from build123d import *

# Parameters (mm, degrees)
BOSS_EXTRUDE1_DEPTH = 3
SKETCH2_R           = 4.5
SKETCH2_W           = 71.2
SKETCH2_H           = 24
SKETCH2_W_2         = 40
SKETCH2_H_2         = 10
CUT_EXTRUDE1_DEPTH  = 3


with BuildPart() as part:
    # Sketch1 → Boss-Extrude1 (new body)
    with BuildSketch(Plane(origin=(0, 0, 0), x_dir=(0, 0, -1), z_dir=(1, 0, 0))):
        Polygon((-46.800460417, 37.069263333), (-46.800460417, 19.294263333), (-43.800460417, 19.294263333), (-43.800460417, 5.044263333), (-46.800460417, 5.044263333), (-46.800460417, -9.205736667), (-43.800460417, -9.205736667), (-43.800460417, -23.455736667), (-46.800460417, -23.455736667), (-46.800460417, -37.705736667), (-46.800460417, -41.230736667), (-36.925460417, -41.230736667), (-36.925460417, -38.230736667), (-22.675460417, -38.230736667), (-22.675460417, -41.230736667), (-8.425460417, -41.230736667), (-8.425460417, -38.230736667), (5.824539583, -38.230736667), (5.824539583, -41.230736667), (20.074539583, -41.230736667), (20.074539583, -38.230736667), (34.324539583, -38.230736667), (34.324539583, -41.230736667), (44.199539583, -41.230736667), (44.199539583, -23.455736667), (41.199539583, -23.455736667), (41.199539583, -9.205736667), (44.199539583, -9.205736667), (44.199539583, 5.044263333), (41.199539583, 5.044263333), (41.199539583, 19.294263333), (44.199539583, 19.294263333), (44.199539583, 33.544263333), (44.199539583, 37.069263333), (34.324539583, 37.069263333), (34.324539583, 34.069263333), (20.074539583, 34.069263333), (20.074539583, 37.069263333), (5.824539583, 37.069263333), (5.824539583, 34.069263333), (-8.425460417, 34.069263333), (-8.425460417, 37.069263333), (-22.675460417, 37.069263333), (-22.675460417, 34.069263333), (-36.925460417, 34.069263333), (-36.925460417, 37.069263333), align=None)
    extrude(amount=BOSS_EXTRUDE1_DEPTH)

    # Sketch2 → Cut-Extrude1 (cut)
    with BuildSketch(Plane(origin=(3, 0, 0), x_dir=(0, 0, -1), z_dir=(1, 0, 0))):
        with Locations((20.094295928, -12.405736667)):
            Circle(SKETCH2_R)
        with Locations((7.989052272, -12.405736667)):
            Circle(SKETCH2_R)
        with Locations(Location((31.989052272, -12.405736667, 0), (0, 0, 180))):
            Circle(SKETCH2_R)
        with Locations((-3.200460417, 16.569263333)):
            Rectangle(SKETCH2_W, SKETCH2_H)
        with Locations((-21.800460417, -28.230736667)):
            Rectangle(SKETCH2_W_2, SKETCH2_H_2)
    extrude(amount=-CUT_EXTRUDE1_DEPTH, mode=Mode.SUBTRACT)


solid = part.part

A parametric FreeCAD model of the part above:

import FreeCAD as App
import Part
import Sketcher

V = App.Vector


def add_polygon(sketch, points):
    """Adds a closed chain of lines whose ends are joined by coincident constraints."""
    first, n = sketch.GeometryCount, len(points)
    for a, b in zip(points, points[1:] + points[:1]):
        sketch.addGeometry(Part.LineSegment(App.Vector(*a, 0), App.Vector(*b, 0)), False)
    for i in range(n):
        sketch.addConstraint(Sketcher.Constraint("Coincident", first + i, 2, first + (i + 1) % n, 1))

doc = App.newDocument("Part")
body = doc.addObject("PartDesign::Body", "Body")

sketch1 = body.newObject("Sketcher::SketchObject", "Sketch")
sketch1.AttachmentSupport = (doc.getObject("YZ_Plane"), [""])
sketch1.MapMode = "FlatFace"
add_polygon(sketch1, [(37.1, 46.8), (19.3, 46.8), (19.3, 43.8), (5, 43.8), (5, 46.8), (-9.2, 46.8), (-9.2, 43.8), (-23.5, 43.8), (-23.5, 46.8), (-41.2, 46.8), (-41.2, 36.9), (-38.2, 36.9), (-38.2, 22.7), (-41.2, 22.7), (-41.2, 8.4), (-38.2, 8.4), (-38.2, -5.8), (-41.2, -5.8), (-41.2, -20.1), (-38.2, -20.1), (-38.2, -34.3), (-41.2, -34.3), (-41.2, -44.2), (-23.5, -44.2), (-23.5, -41.2), (-9.2, -41.2), (-9.2, -44.2), (5, -44.2), (5, -41.2), (19.3, -41.2), (19.3, -44.2), (37.1, -44.2), (37.1, -34.3), (34.1, -34.3), (34.1, -20.1), (37.1, -20.1), (37.1, -5.8), (34.1, -5.8), (34.1, 8.4), (37.1, 8.4), (37.1, 22.7), (34.1, 22.7), (34.1, 36.9), (37.1, 36.9)])
sketch1.addConstraint(Sketcher.Constraint("Horizontal", 0))
sketch1.addConstraint(Sketcher.Constraint("Vertical", 1))
sketch1.addConstraint(Sketcher.Constraint("Horizontal", 2))
sketch1.addConstraint(Sketcher.Constraint("Vertical", 3))
sketch1.addConstraint(Sketcher.Constraint("Horizontal", 4))
sketch1.addConstraint(Sketcher.Constraint("Vertical", 5))
sketch1.addConstraint(Sketcher.Constraint("Horizontal", 6))
sketch1.addConstraint(Sketcher.Constraint("Vertical", 7))
sketch1.addConstraint(Sketcher.Constraint("Horizontal", 8))
sketch1.addConstraint(Sketcher.Constraint("Vertical", 9))
sketch1.addConstraint(Sketcher.Constraint("Horizontal", 10))
sketch1.addConstraint(Sketcher.Constraint("Vertical", 11))
sketch1.addConstraint(Sketcher.Constraint("Horizontal", 12))
sketch1.addConstraint(Sketcher.Constraint("Vertical", 13))
sketch1.addConstraint(Sketcher.Constraint("Horizontal", 14))
sketch1.addConstraint(Sketcher.Constraint("Vertical", 15))
sketch1.addConstraint(Sketcher.Constraint("Horizontal", 16))
sketch1.addConstraint(Sketcher.Constraint("Vertical", 17))
sketch1.addConstraint(Sketcher.Constraint("Horizontal", 18))
sketch1.addConstraint(Sketcher.Constraint("Vertical", 19))
sketch1.addConstraint(Sketcher.Constraint("Horizontal", 20))
sketch1.addConstraint(Sketcher.Constraint("Vertical", 21))
sketch1.addConstraint(Sketcher.Constraint("Horizontal", 22))
sketch1.addConstraint(Sketcher.Constraint("Vertical", 23))
sketch1.addConstraint(Sketcher.Constraint("Horizontal", 24))
sketch1.addConstraint(Sketcher.Constraint("Vertical", 25))
sketch1.addConstraint(Sketcher.Constraint("Horizontal", 26))
sketch1.addConstraint(Sketcher.Constraint("Vertical", 27))
sketch1.addConstraint(Sketcher.Constraint("Horizontal", 28))
sketch1.addConstraint(Sketcher.Constraint("Vertical", 29))
sketch1.addConstraint(Sketcher.Constraint("Horizontal", 30))
sketch1.addConstraint(Sketcher.Constraint("Vertical", 31))
sketch1.addConstraint(Sketcher.Constraint("Horizontal", 32))
sketch1.addConstraint(Sketcher.Constraint("Vertical", 33))
sketch1.addConstraint(Sketcher.Constraint("Horizontal", 34))
sketch1.addConstraint(Sketcher.Constraint("Vertical", 35))
sketch1.addConstraint(Sketcher.Constraint("Horizontal", 36))
sketch1.addConstraint(Sketcher.Constraint("Vertical", 37))
sketch1.addConstraint(Sketcher.Constraint("Horizontal", 38))
sketch1.addConstraint(Sketcher.Constraint("Vertical", 39))
sketch1.addConstraint(Sketcher.Constraint("Horizontal", 40))
sketch1.addConstraint(Sketcher.Constraint("Vertical", 41))
sketch1.addConstraint(Sketcher.Constraint("Horizontal", 42))
sketch1.addConstraint(Sketcher.Constraint("Vertical", 43))
sketch1.addConstraint(Sketcher.Constraint("Horizontal", 0, 2, 3, 2))
sketch1.addConstraint(Sketcher.Constraint("Horizontal", 2, 2, 5, 2))
sketch1.addConstraint(Sketcher.Constraint("Horizontal", 4, 2, 7, 2))
sketch1.addConstraint(Sketcher.Constraint("Horizontal", 22, 2, 25, 2))
sketch1.addConstraint(Sketcher.Constraint("Horizontal", 24, 2, 27, 2))
sketch1.addConstraint(Sketcher.Constraint("Horizontal", 26, 2, 29, 2))
sketch1.addConstraint(Sketcher.Constraint("Horizontal", 20, 2, 31, 2))
sketch1.addConstraint(Sketcher.Constraint("Horizontal", 18, 2, 33, 2))
sketch1.addConstraint(Sketcher.Constraint("Horizontal", 16, 2, 35, 2))
sketch1.addConstraint(Sketcher.Constraint("Horizontal", 14, 2, 37, 2))
sketch1.addConstraint(Sketcher.Constraint("Horizontal", 12, 2, 39, 2))
sketch1.addConstraint(Sketcher.Constraint("Horizontal", 10, 2, 41, 2))
sketch1.addConstraint(Sketcher.Constraint("Vertical", 9, 2, 12, 2))
sketch1.addConstraint(Sketcher.Constraint("Vertical", 11, 2, 14, 2))
sketch1.addConstraint(Sketcher.Constraint("Vertical", 13, 2, 16, 2))
sketch1.addConstraint(Sketcher.Constraint("Vertical", 15, 2, 18, 2))
sketch1.addConstraint(Sketcher.Constraint("Vertical", 17, 2, 20, 2))
sketch1.addConstraint(Sketcher.Constraint("Vertical", 7, 2, 22, 2))
sketch1.addConstraint(Sketcher.Constraint("Vertical", 5, 2, 24, 2))
sketch1.addConstraint(Sketcher.Constraint("Vertical", 3, 2, 26, 2))
sketch1.addConstraint(Sketcher.Constraint("Vertical", 1, 2, 28, 2))
sketch1.addConstraint(Sketcher.Constraint("Vertical", 31, 2, 34, 2))
sketch1.addConstraint(Sketcher.Constraint("Vertical", 33, 2, 36, 2))
sketch1.addConstraint(Sketcher.Constraint("Vertical", 35, 2, 38, 2))
sketch1.addConstraint(Sketcher.Constraint("Vertical", 37, 2, 40, 2))
sketch1.addConstraint(Sketcher.Constraint("Vertical", 39, 2, 42, 2))
sketch1.addConstraint(Sketcher.Constraint("Equal", 2, 4))
sketch1.addConstraint(Sketcher.Constraint("Equal", 4, 6))
sketch1.addConstraint(Sketcher.Constraint("Equal", 0, 8))
sketch1.addConstraint(Sketcher.Constraint("Equal", 20, 32))
sketch1.addConstraint(Sketcher.Constraint("Equal", 42, 1))
sketch1.addConstraint(Sketcher.Constraint("Equal", 28, 11))
sketch1.addConstraint(Sketcher.Constraint("Equal", 11, 13))
sketch1.addConstraint(Sketcher.Constraint("Equal", 13, 15))
sketch1.addConstraint(Sketcher.Constraint("Equal", 15, 17))
sketch1.addConstraint(Sketcher.Constraint("Equal", 17, 19))
sketch1.addConstraint(Sketcher.Constraint("Equal", 9, 21))
sketch1.addConstraint(Sketcher.Constraint("Equal", 7, 23))
sketch1.addConstraint(Sketcher.Constraint("DistanceX", 10, 1, 10, 2, 3.0))
sketch1.addConstraint(Sketcher.Constraint("DistanceX", 2, 2, 2, 1, 14.25))
sketch1.addConstraint(Sketcher.Constraint("DistanceX", 0, 2, 0, 1, 17.775))
sketch1.addConstraint(Sketcher.Constraint("DistanceY", 9, 2, 9, 1, 9.875))
sketch1.addConstraint(Sketcher.Constraint("DistanceY", -1, 1, 0, 2, 46.80046))
sketch1.addConstraint(Sketcher.Constraint("DistanceX", -1, 1, 0, 2, 19.294263))
pad1 = body.newObject("PartDesign::Pad", "Pad")
pad1.Profile = sketch1
pad1.Length = 3

sketch2 = body.newObject("Sketcher::SketchObject", "Sketch001")
sketch2.AttachmentSupport = (doc.getObject("YZ_Plane"), [""])
sketch2.MapMode = "FlatFace"
sketch2.AttachmentOffset = App.Placement(V(0, 0, 3), App.Rotation())
sketch2.addGeometry(Part.Circle(V(-12.4, -20.1, 0), V(0, 0, 1), 4.5), False)
sketch2.addGeometry(Part.Circle(V(-12.4, -8, 0), V(0, 0, 1), 4.5), False)
sketch2.addGeometry(Part.Circle(V(-12.4, -32, 0), V(0, 0, 1), 4.5), False)
add_polygon(sketch2, [(28.6, 38.8), (4.6, 38.8), (4.6, -32.4), (28.6, -32.4)])
add_polygon(sketch2, [(-23.2, 41.8), (-33.2, 41.8), (-33.2, 1.8), (-23.2, 1.8)])
sketch2.addConstraint(Sketcher.Constraint("Horizontal", 3))
sketch2.addConstraint(Sketcher.Constraint("Vertical", 4))
sketch2.addConstraint(Sketcher.Constraint("Horizontal", 5))
sketch2.addConstraint(Sketcher.Constraint("Vertical", 6))
sketch2.addConstraint(Sketcher.Constraint("Horizontal", 7))
sketch2.addConstraint(Sketcher.Constraint("Vertical", 8))
sketch2.addConstraint(Sketcher.Constraint("Horizontal", 9))
sketch2.addConstraint(Sketcher.Constraint("Vertical", 10))
sketch2.addConstraint(Sketcher.Constraint("Equal", 0, 1))
sketch2.addConstraint(Sketcher.Constraint("Equal", 1, 2))
sketch2.addConstraint(Sketcher.Constraint("Vertical", 0, 3, 1, 3))
sketch2.addConstraint(Sketcher.Constraint("Vertical", 1, 3, 2, 3))
sketch2.addConstraint(Sketcher.Constraint("Diameter", 0, 9.0))
sketch2.addConstraint(Sketcher.Constraint("DistanceX", 3, 2, 3, 1, 24.0))
sketch2.addConstraint(Sketcher.Constraint("DistanceX", 7, 2, 7, 1, 10.0))
sketch2.addConstraint(Sketcher.Constraint("DistanceY", 8, 2, 8, 1, 40.0))
sketch2.addConstraint(Sketcher.Constraint("DistanceY", 4, 2, 4, 1, 71.2))
sketch2.addConstraint(Sketcher.Constraint("DistanceY", 2, 3, 1, 3, 24.0))
sketch2.addConstraint(Sketcher.Constraint("DistanceY", 3, 2, 7, 2, 3.0))
sketch2.addConstraint(Sketcher.Constraint("DistanceX", 7, 2, 3, 2, 37.8))
sketch2.addConstraint(Sketcher.Constraint("DistanceX", 1, 3, 3, 2, 16.975))
sketch2.addConstraint(Sketcher.Constraint("DistanceY", -1, 1, 3, 2, 38.80046))
sketch2.addConstraint(Sketcher.Constraint("DistanceX", 0, 3, -1, 1, 12.405737))
sketch2.addConstraint(Sketcher.Constraint("DistanceY", 0, 3, -1, 1, 20.094296))
sketch2.addConstraint(Sketcher.Constraint("DistanceY", 1, 3, -1, 1, 7.989052))
pocket1 = body.newObject("PartDesign::Pocket", "Pocket")
pocket1.Profile = sketch2
pocket1.Length = 3

doc.recompute()
